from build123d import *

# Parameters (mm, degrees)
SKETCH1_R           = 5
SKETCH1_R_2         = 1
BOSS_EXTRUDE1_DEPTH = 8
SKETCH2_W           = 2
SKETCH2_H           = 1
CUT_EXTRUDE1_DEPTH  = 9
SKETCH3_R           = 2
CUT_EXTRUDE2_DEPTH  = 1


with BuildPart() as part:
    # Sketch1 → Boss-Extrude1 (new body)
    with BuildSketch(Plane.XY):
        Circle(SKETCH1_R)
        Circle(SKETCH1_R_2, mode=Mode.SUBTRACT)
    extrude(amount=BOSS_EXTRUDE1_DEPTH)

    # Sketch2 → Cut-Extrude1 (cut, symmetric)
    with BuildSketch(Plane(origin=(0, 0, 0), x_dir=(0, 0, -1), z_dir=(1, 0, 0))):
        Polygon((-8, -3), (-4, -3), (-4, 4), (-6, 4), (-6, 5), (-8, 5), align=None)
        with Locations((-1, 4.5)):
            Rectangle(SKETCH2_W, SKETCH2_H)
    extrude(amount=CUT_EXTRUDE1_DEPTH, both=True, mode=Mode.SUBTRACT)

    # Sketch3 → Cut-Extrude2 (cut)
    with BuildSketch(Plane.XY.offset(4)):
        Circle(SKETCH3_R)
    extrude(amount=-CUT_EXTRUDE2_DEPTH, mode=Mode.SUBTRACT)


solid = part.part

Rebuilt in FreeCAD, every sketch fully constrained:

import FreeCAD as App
import Part
import Sketcher
Q = App.Units.Quantity


def add_polygon(sketch, points):
    """Adds a closed chain of lines whose ends are joined by coincident constraints."""
    first, n = sketch.GeometryCount, len(points)
    for a, b in zip(points, points[1:] + points[:1]):
        sketch.addGeometry(Part.LineSegment(App.Vector(*a, 0), App.Vector(*b, 0)), False)
    for i in range(n):
        sketch.addConstraint(Sketcher.Constraint("Coincident", first + i, 2, first + (i + 1) % n, 1))

doc = App.newDocument("Part")
body = doc.addObject("PartDesign::Body", "Body")

# Sketch on XY plane
sketch1 = body.newObject("Sketcher::SketchObject", "Sketch")
sketch1.AttachmentSupport = (doc.getObject("XY_Plane"), [""])
sketch1.MapMode = "FlatFace"
sketch1.addGeometry([
    Part.Circle(App.Vector(0, 0, 0), App.Vector(0, 0, 1), 5),
    Part.Circle(App.Vector(0, 0, 0), App.Vector(0, 0, 1), 1),
], False)
sketch1.addConstraint([
    Sketcher.Constraint("Coincident", 0, 3, -1, 1),
    Sketcher.Constraint("Coincident", 1, 3, -1, 1),
    Sketcher.Constraint("Diameter", 0, Q("10 mm")),
    Sketcher.Constraint("Diameter", 1, Q("2 mm")),
])
pad1 = body.newObject("PartDesign::Pad", "Pad")
pad1.Profile = sketch1
pad1.Length = 8

# Sketch on YZ plane
sketch2 = body.newObject("Sketcher::SketchObject", "Sketch001")
sketch2.AttachmentSupport = (doc.getObject("YZ_Plane"), [""])
sketch2.MapMode = "FlatFace"
add_polygon(sketch2, [(-3, 8), (-3, 4), (4, 4), (4, 6), (5, 6), (5, 8)])  # lines 0-5
add_polygon(sketch2, [(5, 2), (4, 2), (4, 0), (5, 0)])  # lines 6-9
sketch2.addConstraint([
    Sketcher.Constraint("Vertical", 0),
    Sketcher.Constraint("Horizontal", 1),
    Sketcher.Constraint("Vertical", 2),
    Sketcher.Constraint("Horizontal", 3),
    Sketcher.Constraint("Vertical", 4),
    Sketcher.Constraint("Horizontal", 5),
    Sketcher.Constraint("Horizontal", 6),
    Sketcher.Constraint("Vertical", 7),
    Sketcher.Constraint("Horizontal", 8),
    Sketcher.Constraint("Vertical", 9),
    Sketcher.Constraint("PointOnObject", 7, 2, -1),
    Sketcher.Constraint("Vertical", 2, 2, 6, 2),
    Sketcher.Constraint("Vertical", 4, 2, 8, 2),
    Sketcher.Constraint("Equal", 2, 4),
    Sketcher.Constraint("Equal", 4, 7),
    Sketcher.Constraint("DistanceX", 1, 1, 1, 2, Q("7 mm")),
    Sketcher.Constraint("DistanceX", 3, 1, 3, 2, Q("1 mm")),
    Sketcher.Constraint("DistanceY", 0, 2, 0, 1, Q("4 mm")),
    Sketcher.Constraint("DistanceX", 0, 2, -1, 1, Q("3 mm")),
    Sketcher.Constraint("DistanceY", -1, 1, 0, 2, Q("4 mm")),
])
pocket1 = body.newObject("PartDesign::Pocket", "Pocket")
pocket1.Profile = sketch2
pocket1.Length = 18
pocket1.Midplane = True

# Sketch on XY plane
sketch3 = body.newObject("Sketcher::SketchObject", "Sketch002")
sketch3.AttachmentSupport = (doc.getObject("XY_Plane"), [""])
sketch3.MapMode = "FlatFace"
sketch3.AttachmentOffset = App.Placement(App.Vector(0, 0, 4), App.Rotation())
sketch3.addGeometry(Part.Circle(App.Vector(0, 0, 0), App.Vector(0, 0, 1), 2), False)
sketch3.addConstraint([
    Sketcher.Constraint("Coincident", 0, 3, -1, 1),
    Sketcher.Constraint("Diameter", 0, Q("4 mm")),
])
pocket2 = body.newObject("PartDesign::Pocket", "Pocket001")
pocket2.Profile = sketch3
pocket2.Length = 1

doc.recompute()
